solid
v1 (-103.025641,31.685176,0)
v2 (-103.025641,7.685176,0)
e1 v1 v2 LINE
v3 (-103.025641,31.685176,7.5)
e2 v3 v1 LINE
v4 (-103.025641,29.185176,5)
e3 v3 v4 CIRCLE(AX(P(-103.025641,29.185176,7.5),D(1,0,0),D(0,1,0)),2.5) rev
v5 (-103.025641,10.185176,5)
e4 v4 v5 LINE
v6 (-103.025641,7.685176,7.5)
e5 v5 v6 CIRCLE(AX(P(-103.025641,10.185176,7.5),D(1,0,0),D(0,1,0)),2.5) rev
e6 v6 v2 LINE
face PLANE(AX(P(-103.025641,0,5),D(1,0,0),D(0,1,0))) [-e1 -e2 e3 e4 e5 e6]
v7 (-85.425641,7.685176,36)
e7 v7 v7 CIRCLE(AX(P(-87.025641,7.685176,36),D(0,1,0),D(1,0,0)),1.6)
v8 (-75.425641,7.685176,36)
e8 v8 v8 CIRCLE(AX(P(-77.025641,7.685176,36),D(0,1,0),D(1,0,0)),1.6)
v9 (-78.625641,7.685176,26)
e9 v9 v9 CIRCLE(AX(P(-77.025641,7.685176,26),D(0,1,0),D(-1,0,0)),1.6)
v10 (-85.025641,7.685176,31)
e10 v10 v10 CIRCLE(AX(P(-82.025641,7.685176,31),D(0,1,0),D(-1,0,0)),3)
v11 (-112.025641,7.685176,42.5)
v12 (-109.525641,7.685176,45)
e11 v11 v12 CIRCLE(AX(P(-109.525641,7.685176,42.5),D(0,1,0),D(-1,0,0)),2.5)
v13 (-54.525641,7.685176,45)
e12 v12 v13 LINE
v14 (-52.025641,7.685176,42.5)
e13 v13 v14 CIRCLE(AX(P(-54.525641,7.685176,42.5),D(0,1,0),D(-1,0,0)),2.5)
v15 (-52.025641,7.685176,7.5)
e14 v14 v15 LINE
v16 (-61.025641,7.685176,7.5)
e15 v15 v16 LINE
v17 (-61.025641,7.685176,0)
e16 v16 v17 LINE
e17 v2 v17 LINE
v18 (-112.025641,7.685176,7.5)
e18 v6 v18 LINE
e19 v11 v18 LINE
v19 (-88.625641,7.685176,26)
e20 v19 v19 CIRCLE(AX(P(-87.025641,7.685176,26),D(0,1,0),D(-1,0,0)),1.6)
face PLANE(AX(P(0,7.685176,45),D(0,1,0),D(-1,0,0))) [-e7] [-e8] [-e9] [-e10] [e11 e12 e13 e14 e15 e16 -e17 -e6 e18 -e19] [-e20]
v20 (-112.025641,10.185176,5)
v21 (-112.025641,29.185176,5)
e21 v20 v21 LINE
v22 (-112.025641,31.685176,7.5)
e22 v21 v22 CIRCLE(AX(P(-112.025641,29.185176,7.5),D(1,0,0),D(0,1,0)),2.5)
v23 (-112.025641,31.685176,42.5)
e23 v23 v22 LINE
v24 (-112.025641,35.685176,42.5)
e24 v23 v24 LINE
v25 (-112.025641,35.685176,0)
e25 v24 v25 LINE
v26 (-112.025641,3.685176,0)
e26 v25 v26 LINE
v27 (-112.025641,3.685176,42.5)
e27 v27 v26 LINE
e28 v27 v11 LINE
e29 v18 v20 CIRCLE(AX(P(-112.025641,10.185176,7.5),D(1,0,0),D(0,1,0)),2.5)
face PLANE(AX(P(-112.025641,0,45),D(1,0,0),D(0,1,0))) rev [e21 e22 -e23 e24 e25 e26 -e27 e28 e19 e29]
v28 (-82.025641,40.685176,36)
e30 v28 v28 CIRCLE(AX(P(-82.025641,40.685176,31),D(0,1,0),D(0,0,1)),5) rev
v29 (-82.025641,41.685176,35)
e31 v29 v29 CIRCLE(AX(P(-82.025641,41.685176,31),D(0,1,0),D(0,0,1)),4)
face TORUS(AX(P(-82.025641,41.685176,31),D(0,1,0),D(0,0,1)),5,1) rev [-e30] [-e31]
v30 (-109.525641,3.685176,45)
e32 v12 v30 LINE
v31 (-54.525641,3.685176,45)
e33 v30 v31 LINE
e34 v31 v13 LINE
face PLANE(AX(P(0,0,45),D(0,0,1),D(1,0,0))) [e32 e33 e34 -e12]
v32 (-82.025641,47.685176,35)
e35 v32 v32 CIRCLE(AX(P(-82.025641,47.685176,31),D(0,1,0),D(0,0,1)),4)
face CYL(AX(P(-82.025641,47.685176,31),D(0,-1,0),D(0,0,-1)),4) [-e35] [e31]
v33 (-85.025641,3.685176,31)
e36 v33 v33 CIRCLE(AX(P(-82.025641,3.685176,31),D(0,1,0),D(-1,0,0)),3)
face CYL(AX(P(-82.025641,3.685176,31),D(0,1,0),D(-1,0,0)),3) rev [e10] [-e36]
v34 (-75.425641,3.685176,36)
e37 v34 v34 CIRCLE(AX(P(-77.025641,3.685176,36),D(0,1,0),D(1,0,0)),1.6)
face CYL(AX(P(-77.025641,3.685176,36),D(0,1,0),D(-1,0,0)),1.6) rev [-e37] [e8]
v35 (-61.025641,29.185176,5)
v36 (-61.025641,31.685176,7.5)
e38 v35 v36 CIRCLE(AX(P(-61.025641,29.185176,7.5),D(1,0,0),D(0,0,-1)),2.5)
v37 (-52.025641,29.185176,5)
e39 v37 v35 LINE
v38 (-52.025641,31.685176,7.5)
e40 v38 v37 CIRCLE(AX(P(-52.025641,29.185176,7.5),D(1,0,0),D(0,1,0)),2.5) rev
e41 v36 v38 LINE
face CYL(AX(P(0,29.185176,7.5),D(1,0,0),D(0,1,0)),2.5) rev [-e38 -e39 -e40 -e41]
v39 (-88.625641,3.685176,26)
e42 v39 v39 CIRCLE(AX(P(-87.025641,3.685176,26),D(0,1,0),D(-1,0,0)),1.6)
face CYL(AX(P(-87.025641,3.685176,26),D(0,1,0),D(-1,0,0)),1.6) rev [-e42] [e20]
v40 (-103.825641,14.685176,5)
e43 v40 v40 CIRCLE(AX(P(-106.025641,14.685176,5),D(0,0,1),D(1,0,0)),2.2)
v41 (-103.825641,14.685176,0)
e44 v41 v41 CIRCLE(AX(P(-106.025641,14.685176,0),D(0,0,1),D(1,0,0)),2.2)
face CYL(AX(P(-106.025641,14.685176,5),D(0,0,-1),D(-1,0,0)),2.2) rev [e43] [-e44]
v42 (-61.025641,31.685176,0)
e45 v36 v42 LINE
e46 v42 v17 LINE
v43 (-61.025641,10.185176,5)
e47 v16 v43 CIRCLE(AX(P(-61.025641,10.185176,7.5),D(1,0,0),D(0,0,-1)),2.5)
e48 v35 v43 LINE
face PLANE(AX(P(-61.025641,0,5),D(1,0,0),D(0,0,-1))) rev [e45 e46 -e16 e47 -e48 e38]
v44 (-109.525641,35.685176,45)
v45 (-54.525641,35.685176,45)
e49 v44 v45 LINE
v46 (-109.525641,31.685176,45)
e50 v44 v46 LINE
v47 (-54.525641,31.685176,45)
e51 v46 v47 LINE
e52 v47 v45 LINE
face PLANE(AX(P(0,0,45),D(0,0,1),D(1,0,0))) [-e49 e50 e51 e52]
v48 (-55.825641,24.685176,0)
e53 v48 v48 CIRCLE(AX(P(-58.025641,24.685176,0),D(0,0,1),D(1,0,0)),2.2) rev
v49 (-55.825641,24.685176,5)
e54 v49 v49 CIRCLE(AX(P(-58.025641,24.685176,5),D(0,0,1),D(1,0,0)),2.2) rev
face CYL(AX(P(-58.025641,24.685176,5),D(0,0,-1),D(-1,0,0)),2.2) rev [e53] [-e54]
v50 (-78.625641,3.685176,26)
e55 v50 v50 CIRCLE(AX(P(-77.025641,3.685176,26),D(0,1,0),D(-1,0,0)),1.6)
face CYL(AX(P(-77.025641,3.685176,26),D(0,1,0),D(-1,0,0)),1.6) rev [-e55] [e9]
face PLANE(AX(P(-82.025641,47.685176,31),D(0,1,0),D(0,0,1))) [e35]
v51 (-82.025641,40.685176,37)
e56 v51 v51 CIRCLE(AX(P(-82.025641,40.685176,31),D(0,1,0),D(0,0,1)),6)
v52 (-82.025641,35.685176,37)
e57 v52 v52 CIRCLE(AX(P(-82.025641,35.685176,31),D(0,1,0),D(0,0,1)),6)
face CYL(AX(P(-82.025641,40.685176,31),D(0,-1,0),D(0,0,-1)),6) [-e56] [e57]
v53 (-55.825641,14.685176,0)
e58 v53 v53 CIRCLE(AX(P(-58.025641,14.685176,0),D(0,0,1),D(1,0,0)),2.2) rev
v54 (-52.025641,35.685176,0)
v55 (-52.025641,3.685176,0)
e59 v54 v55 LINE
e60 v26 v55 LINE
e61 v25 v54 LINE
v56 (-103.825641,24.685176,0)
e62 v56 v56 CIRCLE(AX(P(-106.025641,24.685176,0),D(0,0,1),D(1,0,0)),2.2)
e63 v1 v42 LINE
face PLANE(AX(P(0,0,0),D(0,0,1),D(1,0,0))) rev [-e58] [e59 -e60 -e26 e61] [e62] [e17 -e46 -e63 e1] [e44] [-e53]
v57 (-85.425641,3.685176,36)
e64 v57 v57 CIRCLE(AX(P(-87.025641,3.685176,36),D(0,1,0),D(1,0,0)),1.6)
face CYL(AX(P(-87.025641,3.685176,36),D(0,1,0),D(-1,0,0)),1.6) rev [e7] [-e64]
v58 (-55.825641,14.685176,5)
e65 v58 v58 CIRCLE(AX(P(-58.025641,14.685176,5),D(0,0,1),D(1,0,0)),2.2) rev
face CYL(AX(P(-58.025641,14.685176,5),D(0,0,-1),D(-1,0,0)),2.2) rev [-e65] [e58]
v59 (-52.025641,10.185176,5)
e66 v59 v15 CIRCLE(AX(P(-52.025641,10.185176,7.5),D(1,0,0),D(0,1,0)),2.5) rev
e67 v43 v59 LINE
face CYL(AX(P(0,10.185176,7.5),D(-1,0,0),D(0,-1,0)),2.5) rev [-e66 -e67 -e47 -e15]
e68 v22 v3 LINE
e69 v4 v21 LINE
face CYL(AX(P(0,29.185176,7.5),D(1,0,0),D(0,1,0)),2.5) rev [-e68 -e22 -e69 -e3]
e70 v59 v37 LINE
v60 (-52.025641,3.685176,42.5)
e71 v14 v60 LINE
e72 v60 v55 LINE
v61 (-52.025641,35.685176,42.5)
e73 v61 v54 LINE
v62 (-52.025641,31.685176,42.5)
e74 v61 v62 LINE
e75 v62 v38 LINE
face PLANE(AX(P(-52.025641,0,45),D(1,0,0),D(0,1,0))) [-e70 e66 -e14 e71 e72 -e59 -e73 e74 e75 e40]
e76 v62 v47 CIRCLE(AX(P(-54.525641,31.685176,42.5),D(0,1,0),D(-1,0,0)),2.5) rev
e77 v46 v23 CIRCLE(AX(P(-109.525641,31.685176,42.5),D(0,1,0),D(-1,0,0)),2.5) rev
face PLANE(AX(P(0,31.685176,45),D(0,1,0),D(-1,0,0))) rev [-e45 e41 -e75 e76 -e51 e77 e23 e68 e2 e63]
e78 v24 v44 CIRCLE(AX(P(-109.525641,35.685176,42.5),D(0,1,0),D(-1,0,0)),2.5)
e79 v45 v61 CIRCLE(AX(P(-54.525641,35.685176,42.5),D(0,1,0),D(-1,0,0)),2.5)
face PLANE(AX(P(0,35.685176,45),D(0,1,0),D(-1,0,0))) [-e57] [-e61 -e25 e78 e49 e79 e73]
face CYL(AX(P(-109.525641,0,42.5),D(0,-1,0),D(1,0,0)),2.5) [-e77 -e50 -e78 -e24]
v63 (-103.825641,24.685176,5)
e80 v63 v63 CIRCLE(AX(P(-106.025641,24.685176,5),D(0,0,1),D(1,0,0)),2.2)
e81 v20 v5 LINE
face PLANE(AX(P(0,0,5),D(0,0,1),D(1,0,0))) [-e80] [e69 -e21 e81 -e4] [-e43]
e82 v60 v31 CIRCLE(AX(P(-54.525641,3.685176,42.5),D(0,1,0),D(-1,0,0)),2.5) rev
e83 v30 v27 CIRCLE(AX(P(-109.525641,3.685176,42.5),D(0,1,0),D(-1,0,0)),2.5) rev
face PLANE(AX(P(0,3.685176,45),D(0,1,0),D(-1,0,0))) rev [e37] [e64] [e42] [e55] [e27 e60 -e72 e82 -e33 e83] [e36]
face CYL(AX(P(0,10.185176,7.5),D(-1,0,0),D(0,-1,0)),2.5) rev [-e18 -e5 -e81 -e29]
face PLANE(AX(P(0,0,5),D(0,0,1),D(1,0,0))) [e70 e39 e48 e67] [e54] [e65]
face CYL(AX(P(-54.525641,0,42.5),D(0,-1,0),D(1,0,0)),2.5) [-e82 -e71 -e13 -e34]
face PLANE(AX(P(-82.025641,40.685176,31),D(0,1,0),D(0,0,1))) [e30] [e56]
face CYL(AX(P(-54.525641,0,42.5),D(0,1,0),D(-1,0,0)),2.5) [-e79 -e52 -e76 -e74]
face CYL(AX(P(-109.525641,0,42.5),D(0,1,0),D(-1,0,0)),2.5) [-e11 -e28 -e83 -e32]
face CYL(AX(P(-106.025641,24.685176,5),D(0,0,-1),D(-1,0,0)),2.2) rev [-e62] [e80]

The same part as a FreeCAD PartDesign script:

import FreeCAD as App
import Part
import Sketcher
from FreeCAD import Vector
Q = App.Units.Quantity


def edges_at(feature, points):
    """Names of the edges that pass closest to the given points."""
    edges = feature.Shape.Edges
    near = lambda p: min(range(len(edges)), key=lambda i: edges[i].distToShape(Part.Vertex(*p))[0])
    return sorted({f"Edge{near(p) + 1}" for p in points})


def add_polygon(sketch, points):
    """Adds a closed chain of lines whose ends are joined by coincident constraints."""
    first, n = sketch.GeometryCount, len(points)
    for a, b in zip(points, points[1:] + points[:1]):
        sketch.addGeometry(Part.LineSegment(App.Vector(*a, 0), App.Vector(*b, 0)), False)
    for i in range(n):
        sketch.addConstraint(Sketcher.Constraint("Coincident", first + i, 2, first + (i + 1) % n, 1))

doc = App.newDocument("Part")
body = doc.addObject("PartDesign::Body", "Body")

sketch1 = body.newObject("Sketcher::SketchObject", "Sketch")
sketch1.AttachmentSupport = (doc.getObject("XY_Plane"), [""])
sketch1.MapMode = "FlatFace"
add_polygon(sketch1, [(-112, 7.7), (-112, 3.7), (-52, 3.7), (-52, 7.7)])
sketch1.addConstraint([
    Sketcher.Constraint("Vertical", 0),
    Sketcher.Constraint("Horizontal", 1),
    Sketcher.Constraint("Vertical", 2),
    Sketcher.Constraint("Horizontal", 3),
    Sketcher.Constraint("DistanceX", 1, 1, 1, 2, Q("60 mm")),
    Sketcher.Constraint("DistanceY", 0, 2, 0, 1, Q("4 mm")),
    Sketcher.Constraint("DistanceX", 0, 2, -1, 1, Q("112.025641 mm")),
    Sketcher.Constraint("DistanceY", -1, 1, 0, 2, Q("3.685176 mm")),
])
pad1 = body.newObject("PartDesign::Pad", "Pad")
pad1.Profile = sketch1
pad1.Length = 45

sketch2 = body.newObject("Sketcher::SketchObject", "Sketch001")
sketch2.AttachmentSupport = (doc.getObject("XY_Plane"), [""])
sketch2.MapMode = "FlatFace"
add_polygon(sketch2, [(-112, 7.7), (-103, 7.7), (-103, 31.7), (-112, 31.7)])
sketch2.addGeometry(Part.Circle(Vector(-106, 14.7, 0), Vector(0, 0, 1), 2.2), False)
sketch2.addGeometry(Part.Circle(Vector(-106, 24.7, 0), Vector(0, 0, 1), 2.2), False)
add_polygon(sketch2, [(-61, 7.7), (-52, 7.7), (-52, 31.7), (-61, 31.7)])
sketch2.addGeometry(Part.Circle(Vector(-58, 14.7, 0), Vector(0, 0, 1), 2.2), False)
sketch2.addGeometry(Part.Circle(Vector(-58, 24.7, 0), Vector(0, 0, 1), 2.2), False)
sketch2.addConstraint([
    Sketcher.Constraint("Horizontal", 0),
    Sketcher.Constraint("Vertical", 1),
    Sketcher.Constraint("Horizontal", 2),
    Sketcher.Constraint("Vertical", 3),
    Sketcher.Constraint("Horizontal", 6),
    Sketcher.Constraint("Vertical", 7),
    Sketcher.Constraint("Horizontal", 8),
    Sketcher.Constraint("Vertical", 9),
    Sketcher.Constraint("Equal", 4, 5),
    Sketcher.Constraint("Equal", 5, 10),
    Sketcher.Constraint("Equal", 10, 11),
    Sketcher.Constraint("Horizontal", 4, 3, 10, 3),
    Sketcher.Constraint("Horizontal", 5, 3, 11, 3),
    Sketcher.Constraint("Horizontal", 3, 2, 6, 2),
    Sketcher.Constraint("Horizontal", 2, 2, 7, 2),
    Sketcher.Constraint("Vertical", 4, 3, 5, 3),
    Sketcher.Constraint("Vertical", 10, 3, 11, 3),
    Sketcher.Constraint("Equal", 2, 6),
    Sketcher.Constraint("Diameter", 4, Q("4.4 mm")),
    Sketcher.Constraint("DistanceX", 0, 1, 0, 2, Q("9 mm")),
    Sketcher.Constraint("DistanceY", 1, 1, 1, 2, Q("24 mm")),
    Sketcher.Constraint("DistanceY", 4, 3, 5, 3, Q("10 mm")),
    Sketcher.Constraint("DistanceX", 4, 3, 10, 3, Q("48 mm")),
    Sketcher.Constraint("DistanceX", 4, 3, 0, 2, Q("3 mm")),
    Sketcher.Constraint("DistanceY", 0, 2, 4, 3, Q("7 mm")),
    Sketcher.Constraint("DistanceX", 10, 3, 6, 2, Q("6 mm")),
    Sketcher.Constraint("DistanceX", 4, 3, -1, 1, Q("106.025641 mm")),
    Sketcher.Constraint("DistanceY", -1, 1, 4, 3, Q("14.685176 mm")),
])
pad2 = body.newObject("PartDesign::Pad", "Pad001")
pad2.Profile = sketch2
pad2.Length = 5

sketch3 = body.newObject("Sketcher::SketchObject", "Sketch002")
sketch3.AttachmentSupport = (doc.getObject("XZ_Plane"), [""])
sketch3.MapMode = "FlatFace"
sketch3.AttachmentOffset = App.Placement(Vector(0, 0, -7.685176), App.Rotation())
sketch3.addGeometry([
    Part.Circle(Vector(-82, 31, 0), Vector(0, 0, 1), 3),
    Part.Circle(Vector(-77, 26, 0), Vector(0, 0, 1), 1.6),
    Part.Circle(Vector(-87, 26, 0), Vector(0, 0, 1), 1.6),
    Part.Circle(Vector(-77, 36, 0), Vector(0, 0, 1), 1.6),
    Part.Circle(Vector(-87, 36, 0), Vector(0, 0, 1), 1.6),
], False)
sketch3.addConstraint([
    Sketcher.Constraint("Equal", 1, 2),
    Sketcher.Constraint("Equal", 2, 3),
    Sketcher.Constraint("Equal", 3, 4),
    Sketcher.Constraint("Horizontal", 1, 3, 2, 3),
    Sketcher.Constraint("Horizontal", 3, 3, 4, 3),
    Sketcher.Constraint("Vertical", 1, 3, 3, 3),
    Sketcher.Constraint("Vertical", 2, 3, 4, 3),
    Sketcher.Constraint("Diameter", 0, Q("6 mm")),
    Sketcher.Constraint("Diameter", 1, Q("3.2 mm")),
    Sketcher.Constraint("DistanceY", -1, 1, 0, 3, Q("31 mm")),
    Sketcher.Constraint("DistanceY", -1, 1, 1, 3, Q("26 mm")),
    Sketcher.Constraint("DistanceY", -1, 1, 3, 3, Q("36 mm")),
    Sketcher.Constraint("DistanceX", 0, 3, 1, 3, Q("5 mm")),
    Sketcher.Constraint("DistanceX", 2, 3, 0, 3, Q("5 mm")),
    Sketcher.Constraint("DistanceX", 0, 3, -1, 1, Q("82.025641 mm")),
])
pocket1 = body.newObject("PartDesign::Pocket", "Pocket")
pocket1.Profile = sketch3
pocket1.Type = "ThroughAll"
pocket1.Reversed = True

sketch4 = body.newObject("Sketcher::SketchObject", "Sketch003")
sketch4.AttachmentSupport = (doc.getObject("XY_Plane"), [""])
sketch4.MapMode = "FlatFace"
add_polygon(sketch4, [(-112, 35.7), (-112, 31.7), (-52, 31.7), (-52, 35.7)])
sketch4.addConstraint([
    Sketcher.Constraint("Vertical", 0),
    Sketcher.Constraint("Horizontal", 1),
    Sketcher.Constraint("Vertical", 2),
    Sketcher.Constraint("Horizontal", 3),
    Sketcher.Constraint("DistanceX", 1, 1, 1, 2, Q("60 mm")),
    Sketcher.Constraint("DistanceY", 0, 2, 0, 1, Q("4 mm")),
    Sketcher.Constraint("DistanceX", 0, 2, -1, 1, Q("112.025641 mm")),
    Sketcher.Constraint("DistanceY", -1, 1, 0, 2, Q("31.685176 mm")),
])
pad3 = body.newObject("PartDesign::Pad", "Pad002")
pad3.Profile = sketch4
pad3.Length = 45
doc.recompute()

fillet = body.newObject("PartDesign::Fillet", "Fillet")
fillet.Base = (pad3, edges_at(pad3, [
    (-112.026, 5.685, 45),
    (-52.026, 5.685, 45),
    (-112.026, 33.685, 45),
    (-52.026, 33.685, 45),
]))
fillet.Radius = 2.5
doc.recompute()

fillet2 = body.newObject("PartDesign::Fillet", "Fillet001")
fillet2.Base = (fillet, edges_at(fillet, [
    (-107.526, 31.685, 5),
    (-107.526, 7.685, 5),
    (-56.526, 31.685, 5),
    (-56.526, 7.685, 5),
]))
fillet2.Radius = 2.5

sketch5 = body.newObject("Sketcher::SketchObject", "Sketch004")
sketch5.AttachmentSupport = (doc.getObject("XZ_Plane"), [""])
sketch5.MapMode = "FlatFace"
sketch5.AttachmentOffset = App.Placement(Vector(0, 0, -35.685176), App.Rotation())
sketch5.addGeometry(Part.Circle(Vector(-82, 31, 0), Vector(0, 0, 1), 4), False)
sketch5.addConstraint([
    Sketcher.Constraint("Diameter", 0, Q("8 mm")),
    Sketcher.Constraint("DistanceY", -1, 1, 0, 3, Q("31 mm")),
    Sketcher.Constraint("DistanceX", 0, 3, -1, 1, Q("82.025641 mm")),
])
pad4 = body.newObject("PartDesign::Pad", "Pad003")
pad4.Profile = sketch5
pad4.Length = 12
pad4.Reversed = True

sketch6 = body.newObject("Sketcher::SketchObject", "Sketch005")
sketch6.AttachmentSupport = (doc.getObject("XZ_Plane"), [""])
sketch6.MapMode = "FlatFace"
sketch6.AttachmentOffset = App.Placement(Vector(0, 0, -35.685176), App.Rotation())
sketch6.addGeometry(Part.Circle(Vector(-82, 31, 0), Vector(0, 0, 1), 6), False)
sketch6.addConstraint([
    Sketcher.Constraint("Diameter", 0, Q("12 mm")),
    Sketcher.Constraint("DistanceY", -1, 1, 0, 3, Q("31 mm")),
    Sketcher.Constraint("DistanceX", 0, 3, -1, 1, Q("82.025641 mm")),
])
pad5 = body.newObject("PartDesign::Pad", "Pad004")
pad5.Profile = sketch6
pad5.Length = 5
pad5.Reversed = True
doc.recompute()

fillet3 = body.newObject("PartDesign::Fillet", "Fillet002")
fillet3.Base = (pad5, edges_at(pad5, [(-86.026, 40.685, 31)]))
fillet3.Radius = 1

doc.recompute()
